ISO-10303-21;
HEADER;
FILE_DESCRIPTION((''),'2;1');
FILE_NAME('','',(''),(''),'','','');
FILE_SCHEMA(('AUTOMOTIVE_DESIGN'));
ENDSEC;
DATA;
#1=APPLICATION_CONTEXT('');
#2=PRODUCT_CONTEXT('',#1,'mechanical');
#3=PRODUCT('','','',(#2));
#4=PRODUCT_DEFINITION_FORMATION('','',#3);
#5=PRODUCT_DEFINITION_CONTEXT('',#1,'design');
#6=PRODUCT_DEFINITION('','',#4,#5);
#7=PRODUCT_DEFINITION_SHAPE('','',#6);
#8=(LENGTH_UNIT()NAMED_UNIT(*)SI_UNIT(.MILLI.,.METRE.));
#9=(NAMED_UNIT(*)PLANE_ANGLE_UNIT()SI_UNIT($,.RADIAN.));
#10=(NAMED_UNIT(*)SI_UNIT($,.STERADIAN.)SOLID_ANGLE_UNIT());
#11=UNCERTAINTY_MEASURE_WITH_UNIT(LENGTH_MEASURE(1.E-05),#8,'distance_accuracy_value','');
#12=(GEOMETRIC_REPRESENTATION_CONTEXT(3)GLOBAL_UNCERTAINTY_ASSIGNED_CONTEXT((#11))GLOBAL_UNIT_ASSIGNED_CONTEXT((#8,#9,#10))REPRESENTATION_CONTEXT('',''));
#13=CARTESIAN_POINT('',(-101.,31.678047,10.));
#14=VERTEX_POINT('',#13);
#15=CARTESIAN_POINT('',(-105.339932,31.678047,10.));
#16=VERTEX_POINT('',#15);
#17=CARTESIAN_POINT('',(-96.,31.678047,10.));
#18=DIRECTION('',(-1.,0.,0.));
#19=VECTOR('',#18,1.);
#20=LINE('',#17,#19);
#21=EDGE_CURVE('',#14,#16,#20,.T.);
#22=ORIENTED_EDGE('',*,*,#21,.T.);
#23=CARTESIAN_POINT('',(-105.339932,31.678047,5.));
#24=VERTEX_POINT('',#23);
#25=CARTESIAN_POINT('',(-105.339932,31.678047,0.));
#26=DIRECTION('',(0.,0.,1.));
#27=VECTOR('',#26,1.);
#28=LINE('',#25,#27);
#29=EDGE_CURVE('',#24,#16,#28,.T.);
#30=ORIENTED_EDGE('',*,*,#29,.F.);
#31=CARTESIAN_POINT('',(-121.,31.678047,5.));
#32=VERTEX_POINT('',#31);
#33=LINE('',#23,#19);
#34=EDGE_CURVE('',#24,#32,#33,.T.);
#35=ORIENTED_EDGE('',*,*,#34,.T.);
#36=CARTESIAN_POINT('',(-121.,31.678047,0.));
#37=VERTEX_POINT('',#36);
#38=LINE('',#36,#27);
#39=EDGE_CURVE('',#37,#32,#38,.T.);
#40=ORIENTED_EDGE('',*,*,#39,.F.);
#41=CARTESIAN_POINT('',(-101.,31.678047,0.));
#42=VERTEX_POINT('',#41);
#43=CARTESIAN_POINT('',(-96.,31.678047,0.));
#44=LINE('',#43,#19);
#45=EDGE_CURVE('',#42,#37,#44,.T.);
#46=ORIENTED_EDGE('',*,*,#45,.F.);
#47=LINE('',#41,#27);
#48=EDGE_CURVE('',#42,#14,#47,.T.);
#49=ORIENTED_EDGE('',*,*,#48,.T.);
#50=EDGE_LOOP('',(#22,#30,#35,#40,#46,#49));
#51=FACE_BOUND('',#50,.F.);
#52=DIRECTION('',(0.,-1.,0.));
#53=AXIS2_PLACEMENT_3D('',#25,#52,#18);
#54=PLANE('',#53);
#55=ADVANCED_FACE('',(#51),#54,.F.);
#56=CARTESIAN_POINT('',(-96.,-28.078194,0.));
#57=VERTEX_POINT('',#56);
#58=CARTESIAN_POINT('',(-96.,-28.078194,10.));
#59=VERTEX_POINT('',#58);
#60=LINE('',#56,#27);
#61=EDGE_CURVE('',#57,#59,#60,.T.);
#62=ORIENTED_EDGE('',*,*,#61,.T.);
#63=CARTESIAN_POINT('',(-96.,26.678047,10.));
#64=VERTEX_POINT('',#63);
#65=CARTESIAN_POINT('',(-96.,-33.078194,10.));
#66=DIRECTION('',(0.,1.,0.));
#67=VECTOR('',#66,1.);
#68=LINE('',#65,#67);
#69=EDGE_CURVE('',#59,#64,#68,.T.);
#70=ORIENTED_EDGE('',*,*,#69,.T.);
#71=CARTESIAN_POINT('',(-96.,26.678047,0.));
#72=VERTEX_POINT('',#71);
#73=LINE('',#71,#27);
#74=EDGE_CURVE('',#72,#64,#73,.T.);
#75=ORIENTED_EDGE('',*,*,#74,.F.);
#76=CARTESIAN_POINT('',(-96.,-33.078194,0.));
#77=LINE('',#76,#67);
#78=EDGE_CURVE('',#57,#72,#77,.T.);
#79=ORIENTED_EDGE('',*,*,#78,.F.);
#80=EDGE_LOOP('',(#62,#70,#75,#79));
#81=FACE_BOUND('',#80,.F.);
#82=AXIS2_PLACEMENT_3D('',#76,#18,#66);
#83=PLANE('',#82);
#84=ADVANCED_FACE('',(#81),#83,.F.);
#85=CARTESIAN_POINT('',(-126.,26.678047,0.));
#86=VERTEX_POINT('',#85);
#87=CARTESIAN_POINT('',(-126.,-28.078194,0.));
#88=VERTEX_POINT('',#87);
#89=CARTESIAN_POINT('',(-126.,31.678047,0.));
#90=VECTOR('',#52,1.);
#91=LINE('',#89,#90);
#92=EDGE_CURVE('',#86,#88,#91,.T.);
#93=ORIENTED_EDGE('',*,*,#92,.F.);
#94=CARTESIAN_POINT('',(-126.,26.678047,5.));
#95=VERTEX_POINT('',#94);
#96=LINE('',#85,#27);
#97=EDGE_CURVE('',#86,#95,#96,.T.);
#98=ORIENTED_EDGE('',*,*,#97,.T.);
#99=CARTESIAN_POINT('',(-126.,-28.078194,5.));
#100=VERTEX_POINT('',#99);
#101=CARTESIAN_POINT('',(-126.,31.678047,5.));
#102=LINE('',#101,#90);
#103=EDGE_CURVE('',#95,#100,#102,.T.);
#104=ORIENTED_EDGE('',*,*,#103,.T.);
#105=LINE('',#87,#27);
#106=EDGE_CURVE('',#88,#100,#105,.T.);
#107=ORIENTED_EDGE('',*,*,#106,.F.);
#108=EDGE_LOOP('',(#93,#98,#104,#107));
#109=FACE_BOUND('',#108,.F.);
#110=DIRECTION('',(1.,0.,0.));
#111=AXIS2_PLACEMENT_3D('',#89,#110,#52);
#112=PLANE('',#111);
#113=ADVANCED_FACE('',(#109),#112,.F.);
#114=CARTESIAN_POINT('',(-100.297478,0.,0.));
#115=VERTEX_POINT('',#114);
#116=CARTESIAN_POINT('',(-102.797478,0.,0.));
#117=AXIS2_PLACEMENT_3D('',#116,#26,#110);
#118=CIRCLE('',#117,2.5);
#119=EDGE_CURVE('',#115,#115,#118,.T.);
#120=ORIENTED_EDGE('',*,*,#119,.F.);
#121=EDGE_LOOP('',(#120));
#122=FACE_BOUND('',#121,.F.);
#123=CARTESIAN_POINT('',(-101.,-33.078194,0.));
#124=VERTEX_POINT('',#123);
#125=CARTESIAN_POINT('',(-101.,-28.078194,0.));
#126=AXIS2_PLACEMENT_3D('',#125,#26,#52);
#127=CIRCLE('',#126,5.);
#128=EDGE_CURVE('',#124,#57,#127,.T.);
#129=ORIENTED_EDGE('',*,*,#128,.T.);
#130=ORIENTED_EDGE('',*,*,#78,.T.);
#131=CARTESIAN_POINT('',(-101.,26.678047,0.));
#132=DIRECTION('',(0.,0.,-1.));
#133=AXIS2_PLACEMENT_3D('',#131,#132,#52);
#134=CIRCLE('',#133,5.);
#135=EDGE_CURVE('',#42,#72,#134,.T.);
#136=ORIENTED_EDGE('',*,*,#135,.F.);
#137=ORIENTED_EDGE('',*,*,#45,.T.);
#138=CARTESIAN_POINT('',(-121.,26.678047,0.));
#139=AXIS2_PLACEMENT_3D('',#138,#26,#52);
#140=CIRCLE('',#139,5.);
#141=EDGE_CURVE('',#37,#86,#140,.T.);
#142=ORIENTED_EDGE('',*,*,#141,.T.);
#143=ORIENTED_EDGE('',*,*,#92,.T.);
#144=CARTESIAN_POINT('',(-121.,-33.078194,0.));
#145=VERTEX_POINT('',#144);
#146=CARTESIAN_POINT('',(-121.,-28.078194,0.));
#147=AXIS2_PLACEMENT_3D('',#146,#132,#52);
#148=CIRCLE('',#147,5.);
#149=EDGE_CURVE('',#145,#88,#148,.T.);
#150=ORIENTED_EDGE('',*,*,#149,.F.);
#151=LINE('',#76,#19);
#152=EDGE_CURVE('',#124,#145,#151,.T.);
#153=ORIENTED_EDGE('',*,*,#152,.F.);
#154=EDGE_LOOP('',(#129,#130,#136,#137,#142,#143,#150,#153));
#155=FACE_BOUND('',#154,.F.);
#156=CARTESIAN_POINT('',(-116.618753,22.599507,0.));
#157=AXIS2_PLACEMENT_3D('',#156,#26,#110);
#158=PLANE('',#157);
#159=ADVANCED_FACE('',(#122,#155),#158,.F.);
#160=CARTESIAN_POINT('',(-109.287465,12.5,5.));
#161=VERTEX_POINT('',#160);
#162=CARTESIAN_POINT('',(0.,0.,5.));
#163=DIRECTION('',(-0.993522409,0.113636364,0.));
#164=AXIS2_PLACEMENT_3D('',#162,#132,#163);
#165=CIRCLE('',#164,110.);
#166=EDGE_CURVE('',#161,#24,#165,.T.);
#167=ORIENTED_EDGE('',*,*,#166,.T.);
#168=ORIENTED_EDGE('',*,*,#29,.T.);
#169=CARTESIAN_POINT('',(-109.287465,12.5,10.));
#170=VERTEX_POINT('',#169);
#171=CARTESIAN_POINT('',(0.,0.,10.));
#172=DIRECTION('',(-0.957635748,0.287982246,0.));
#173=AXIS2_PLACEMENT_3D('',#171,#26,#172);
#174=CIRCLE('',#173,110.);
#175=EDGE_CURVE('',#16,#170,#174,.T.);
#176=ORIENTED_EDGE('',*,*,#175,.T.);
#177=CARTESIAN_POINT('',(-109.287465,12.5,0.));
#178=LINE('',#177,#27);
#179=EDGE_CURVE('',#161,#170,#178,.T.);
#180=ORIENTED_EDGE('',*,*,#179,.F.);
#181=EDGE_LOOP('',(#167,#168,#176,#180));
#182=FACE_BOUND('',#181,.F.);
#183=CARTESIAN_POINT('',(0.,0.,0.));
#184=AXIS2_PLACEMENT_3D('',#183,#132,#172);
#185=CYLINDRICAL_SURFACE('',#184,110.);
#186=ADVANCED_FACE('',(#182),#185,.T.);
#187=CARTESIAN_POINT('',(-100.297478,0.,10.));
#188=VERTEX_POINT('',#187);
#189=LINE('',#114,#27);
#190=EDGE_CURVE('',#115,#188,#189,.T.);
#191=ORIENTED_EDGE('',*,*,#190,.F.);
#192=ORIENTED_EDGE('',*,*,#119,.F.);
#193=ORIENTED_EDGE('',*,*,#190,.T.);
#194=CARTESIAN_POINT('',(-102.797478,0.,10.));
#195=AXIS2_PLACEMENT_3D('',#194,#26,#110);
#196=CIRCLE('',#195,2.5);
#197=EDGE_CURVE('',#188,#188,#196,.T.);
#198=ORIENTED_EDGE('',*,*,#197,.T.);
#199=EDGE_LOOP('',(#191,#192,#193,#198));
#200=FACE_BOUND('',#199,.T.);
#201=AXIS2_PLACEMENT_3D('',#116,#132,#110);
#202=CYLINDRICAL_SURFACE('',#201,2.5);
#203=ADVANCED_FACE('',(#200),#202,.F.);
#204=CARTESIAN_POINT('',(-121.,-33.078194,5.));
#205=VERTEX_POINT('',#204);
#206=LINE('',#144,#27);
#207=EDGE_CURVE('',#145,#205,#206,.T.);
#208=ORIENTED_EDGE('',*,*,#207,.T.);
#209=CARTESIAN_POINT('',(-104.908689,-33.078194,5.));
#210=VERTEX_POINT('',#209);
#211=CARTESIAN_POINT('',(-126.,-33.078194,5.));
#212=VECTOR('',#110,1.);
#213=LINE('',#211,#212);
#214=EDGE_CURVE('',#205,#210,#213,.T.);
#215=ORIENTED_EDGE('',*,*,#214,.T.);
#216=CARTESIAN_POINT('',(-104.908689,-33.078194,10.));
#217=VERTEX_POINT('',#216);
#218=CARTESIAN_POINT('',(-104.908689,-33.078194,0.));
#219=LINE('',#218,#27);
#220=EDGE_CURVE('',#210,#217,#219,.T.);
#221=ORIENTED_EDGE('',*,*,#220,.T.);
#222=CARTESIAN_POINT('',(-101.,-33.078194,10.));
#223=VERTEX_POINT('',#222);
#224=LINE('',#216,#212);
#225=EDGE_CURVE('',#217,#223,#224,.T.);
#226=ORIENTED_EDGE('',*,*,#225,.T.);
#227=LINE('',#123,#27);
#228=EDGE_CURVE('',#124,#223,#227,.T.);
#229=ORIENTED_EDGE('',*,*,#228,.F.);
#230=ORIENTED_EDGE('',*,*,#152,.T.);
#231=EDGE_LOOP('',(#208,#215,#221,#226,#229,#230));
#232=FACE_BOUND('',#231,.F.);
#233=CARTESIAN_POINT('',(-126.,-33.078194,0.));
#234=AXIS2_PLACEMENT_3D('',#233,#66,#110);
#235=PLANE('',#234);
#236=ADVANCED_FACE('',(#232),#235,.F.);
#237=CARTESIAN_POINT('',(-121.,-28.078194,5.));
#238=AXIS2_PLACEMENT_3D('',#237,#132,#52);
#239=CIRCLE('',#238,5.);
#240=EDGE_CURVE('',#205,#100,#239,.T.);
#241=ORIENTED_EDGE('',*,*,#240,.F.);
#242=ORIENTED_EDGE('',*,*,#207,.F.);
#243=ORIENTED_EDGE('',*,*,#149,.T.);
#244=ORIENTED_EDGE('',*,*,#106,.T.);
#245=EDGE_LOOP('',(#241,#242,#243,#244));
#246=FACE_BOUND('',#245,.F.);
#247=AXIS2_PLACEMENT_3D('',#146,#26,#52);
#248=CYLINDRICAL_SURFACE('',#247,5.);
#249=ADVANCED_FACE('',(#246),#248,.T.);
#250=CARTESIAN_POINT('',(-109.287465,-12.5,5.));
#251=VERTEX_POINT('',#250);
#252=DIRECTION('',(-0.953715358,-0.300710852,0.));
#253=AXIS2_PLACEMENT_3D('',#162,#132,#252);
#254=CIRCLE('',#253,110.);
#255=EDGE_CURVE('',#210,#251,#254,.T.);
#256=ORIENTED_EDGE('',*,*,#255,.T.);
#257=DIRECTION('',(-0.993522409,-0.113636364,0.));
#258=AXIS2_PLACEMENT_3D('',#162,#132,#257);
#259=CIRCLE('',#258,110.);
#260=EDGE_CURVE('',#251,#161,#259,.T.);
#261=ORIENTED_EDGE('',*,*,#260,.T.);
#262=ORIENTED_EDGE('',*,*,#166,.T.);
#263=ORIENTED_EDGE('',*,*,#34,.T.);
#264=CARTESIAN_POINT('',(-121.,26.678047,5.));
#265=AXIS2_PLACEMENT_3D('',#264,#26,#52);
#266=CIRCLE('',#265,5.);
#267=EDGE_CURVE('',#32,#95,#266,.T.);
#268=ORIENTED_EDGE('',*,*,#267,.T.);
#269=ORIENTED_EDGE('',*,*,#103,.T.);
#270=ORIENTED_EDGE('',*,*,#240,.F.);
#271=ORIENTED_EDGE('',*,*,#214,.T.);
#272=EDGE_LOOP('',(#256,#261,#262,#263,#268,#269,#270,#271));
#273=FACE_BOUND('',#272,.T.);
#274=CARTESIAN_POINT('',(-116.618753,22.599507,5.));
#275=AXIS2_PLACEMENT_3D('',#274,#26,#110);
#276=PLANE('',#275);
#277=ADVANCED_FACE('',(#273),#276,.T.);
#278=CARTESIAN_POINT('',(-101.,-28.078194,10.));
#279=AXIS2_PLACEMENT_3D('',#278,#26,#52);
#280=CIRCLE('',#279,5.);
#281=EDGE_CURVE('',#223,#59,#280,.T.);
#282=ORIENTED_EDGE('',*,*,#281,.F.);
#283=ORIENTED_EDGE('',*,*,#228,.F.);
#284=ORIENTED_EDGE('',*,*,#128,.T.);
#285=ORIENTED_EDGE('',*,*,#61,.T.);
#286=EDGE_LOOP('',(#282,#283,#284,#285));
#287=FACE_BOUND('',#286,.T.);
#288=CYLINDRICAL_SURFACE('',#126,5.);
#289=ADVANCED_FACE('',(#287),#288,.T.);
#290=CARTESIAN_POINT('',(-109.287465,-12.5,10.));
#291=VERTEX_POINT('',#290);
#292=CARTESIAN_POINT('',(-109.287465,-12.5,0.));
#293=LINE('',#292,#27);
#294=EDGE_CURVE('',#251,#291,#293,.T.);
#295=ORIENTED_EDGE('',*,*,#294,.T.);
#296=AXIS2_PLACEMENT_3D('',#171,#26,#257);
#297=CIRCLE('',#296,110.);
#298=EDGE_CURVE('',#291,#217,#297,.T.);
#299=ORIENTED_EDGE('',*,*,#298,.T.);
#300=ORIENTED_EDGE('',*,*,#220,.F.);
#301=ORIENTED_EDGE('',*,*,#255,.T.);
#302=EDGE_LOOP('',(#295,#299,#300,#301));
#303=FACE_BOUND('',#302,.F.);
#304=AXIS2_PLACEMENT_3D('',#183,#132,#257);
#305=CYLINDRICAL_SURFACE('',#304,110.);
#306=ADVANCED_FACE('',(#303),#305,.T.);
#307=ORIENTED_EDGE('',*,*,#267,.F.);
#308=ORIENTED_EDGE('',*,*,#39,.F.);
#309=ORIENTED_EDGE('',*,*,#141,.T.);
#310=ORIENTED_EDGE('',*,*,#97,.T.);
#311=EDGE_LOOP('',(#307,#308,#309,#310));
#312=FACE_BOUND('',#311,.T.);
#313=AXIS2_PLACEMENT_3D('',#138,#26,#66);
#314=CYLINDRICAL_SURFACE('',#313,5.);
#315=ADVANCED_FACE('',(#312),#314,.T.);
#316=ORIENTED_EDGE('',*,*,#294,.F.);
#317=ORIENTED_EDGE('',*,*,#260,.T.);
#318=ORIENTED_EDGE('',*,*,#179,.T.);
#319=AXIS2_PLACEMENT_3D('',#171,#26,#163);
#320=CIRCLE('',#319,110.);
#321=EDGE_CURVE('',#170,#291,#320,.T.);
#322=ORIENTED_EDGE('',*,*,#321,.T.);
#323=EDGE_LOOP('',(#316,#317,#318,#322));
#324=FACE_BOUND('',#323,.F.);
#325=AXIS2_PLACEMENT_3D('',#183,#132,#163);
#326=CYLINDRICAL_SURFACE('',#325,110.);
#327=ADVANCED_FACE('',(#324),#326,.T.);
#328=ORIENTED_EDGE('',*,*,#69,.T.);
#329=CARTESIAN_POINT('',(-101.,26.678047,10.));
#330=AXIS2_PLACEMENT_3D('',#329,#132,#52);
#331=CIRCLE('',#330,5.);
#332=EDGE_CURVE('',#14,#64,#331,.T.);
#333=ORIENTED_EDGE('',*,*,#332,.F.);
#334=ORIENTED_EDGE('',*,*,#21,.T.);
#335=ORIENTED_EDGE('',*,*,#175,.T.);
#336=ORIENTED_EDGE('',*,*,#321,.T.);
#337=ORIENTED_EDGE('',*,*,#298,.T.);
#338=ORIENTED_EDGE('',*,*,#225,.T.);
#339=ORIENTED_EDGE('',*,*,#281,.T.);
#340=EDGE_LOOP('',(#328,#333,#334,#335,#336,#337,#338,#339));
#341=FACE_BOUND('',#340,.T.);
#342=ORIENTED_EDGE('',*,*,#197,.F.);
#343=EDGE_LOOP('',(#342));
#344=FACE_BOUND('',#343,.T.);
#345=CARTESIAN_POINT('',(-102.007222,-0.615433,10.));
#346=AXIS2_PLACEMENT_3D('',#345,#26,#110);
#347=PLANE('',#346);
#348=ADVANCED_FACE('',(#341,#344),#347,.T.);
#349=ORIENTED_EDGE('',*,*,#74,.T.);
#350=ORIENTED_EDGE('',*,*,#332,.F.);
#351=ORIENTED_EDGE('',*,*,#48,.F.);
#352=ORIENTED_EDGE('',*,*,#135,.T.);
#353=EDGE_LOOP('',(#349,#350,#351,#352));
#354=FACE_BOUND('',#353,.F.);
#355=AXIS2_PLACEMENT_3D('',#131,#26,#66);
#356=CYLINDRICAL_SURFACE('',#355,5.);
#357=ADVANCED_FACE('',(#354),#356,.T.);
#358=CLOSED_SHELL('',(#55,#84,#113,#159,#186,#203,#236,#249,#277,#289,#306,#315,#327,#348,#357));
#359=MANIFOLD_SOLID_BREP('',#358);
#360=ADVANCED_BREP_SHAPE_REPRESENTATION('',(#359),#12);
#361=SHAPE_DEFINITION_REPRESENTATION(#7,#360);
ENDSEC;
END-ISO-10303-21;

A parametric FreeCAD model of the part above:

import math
import FreeCAD as App
import Part
import Sketcher
from FreeCAD import Vector
Q = App.Units.Quantity


def edges_at(feature, points):
    """Names of the edges that pass closest to the given points."""
    edges = feature.Shape.Edges
    near = lambda p: min(range(len(edges)), key=lambda i: edges[i].distToShape(Part.Vertex(*p))[0])
    return sorted({f"Edge{near(p) + 1}" for p in points})

doc = App.newDocument("Part")
body = doc.addObject("PartDesign::Body", "Body")

# Sketch on XY plane
sketch1 = doc.addObject("Sketcher::SketchObject", "Sketch")
body.addObject(sketch1)
sketch1.AttachmentSupport = (doc.XY_Plane, [""])
sketch1.MapMode = "FlatFace"
sketch1.addGeometry([
    Part.ArcOfCircle(Part.Circle(Vector(0, 0, 0), Vector(0, 0, 1), 110), math.radians(163.26), math.radians(173.48)),  # 0
    Part.ArcOfCircle(Part.Circle(Vector(0, 0, 0), Vector(0, 0, 1), 110), math.radians(173.48), math.radians(186.52)),  # 1
    Part.ArcOfCircle(Part.Circle(Vector(0, 0, 0), Vector(0, 0, 1), 110), math.radians(-173.48), math.radians(-162.5)),  # 2
    Part.LineSegment(Vector(-104.9, -33.1, 0), Vector(-96, -33.1, 0)),  # 3
    Part.LineSegment(Vector(-96, -33.1, 0), Vector(-96, 31.7, 0)),  # 4
    Part.LineSegment(Vector(-96, 31.7, 0), Vector(-105.3, 31.7, 0)),  # 5
    Part.Circle(Vector(-102.8, 0, 0), Vector(0, 0, 1), 2.5),  # 6
], False)
sketch1.addConstraint([
    Sketcher.Constraint("Tangent", 0, 2, 1, 1),
    Sketcher.Constraint("Tangent", 1, 2, 2, 1),
    Sketcher.Constraint("Coincident", 2, 2, 3, 1),
    Sketcher.Constraint("Coincident", 3, 2, 4, 1),
    Sketcher.Constraint("Coincident", 4, 2, 5, 1),
    Sketcher.Constraint("Coincident", 5, 2, 0, 1),
    Sketcher.Constraint("Horizontal", 3),
    Sketcher.Constraint("Vertical", 4),
    Sketcher.Constraint("Horizontal", 5),
    Sketcher.Constraint("Coincident", 0, 3, -1, 1),
    Sketcher.Constraint("Coincident", 2, 3, -1, 1),
    Sketcher.Constraint("PointOnObject", 6, 3, -1),
    Sketcher.Constraint("Vertical", 0, 2, 1, 2),
    Sketcher.Constraint("Diameter", 6, Q("5 mm")),
    Sketcher.Constraint("Radius", 0, Q("110 mm")),
    Sketcher.Constraint("DistanceX", 3, 2, -1, 1, Q("96 mm")),
    Sketcher.Constraint("DistanceY", 1, 2, 0, 2, Q("25 mm")),
    Sketcher.Constraint("DistanceX", 3, 1, 3, 2, Q("8.908689 mm")),
    Sketcher.Constraint("DistanceY", 4, 1, 4, 2, Q("64.756241 mm")),
    Sketcher.Constraint("DistanceX", 6, 3, -1, 1, Q("102.797478 mm")),
])
pad1 = doc.addObject("PartDesign::Pad", "Pad")
body.addObject(pad1)
pad1.Profile = sketch1
pad1.Length = 10

# Sketch on XY plane
sketch2 = doc.addObject("Sketcher::SketchObject", "Sketch001")
body.addObject(sketch2)
sketch2.AttachmentSupport = (doc.XY_Plane, [""])
sketch2.MapMode = "FlatFace"
sketch2.addGeometry([
    Part.ArcOfCircle(Part.Circle(Vector(0, 0, 0), Vector(0, 0, 1), 110), math.radians(163.26), math.radians(173.48)),  # 0
    Part.LineSegment(Vector(-105, 32, 0), Vector(-126, 32, 0)),  # 1
    Part.LineSegment(Vector(-126, 32, 0), Vector(-126, -33, 0)),  # 2
    Part.LineSegment(Vector(-126, -33, 0), Vector(-105, -33, 0)),  # 3
    Part.ArcOfCircle(Part.Circle(Vector(0, 0, 0), Vector(0, 0, 1), 110), math.radians(-173.48), math.radians(-162.5)),  # 4
    Part.ArcOfCircle(Part.Circle(Vector(0, 0, 0), Vector(0, 0, 1), 110), math.radians(173.48), math.radians(186.52)),  # 5
], False)
sketch2.addConstraint([
    Sketcher.Constraint("Coincident", 0, 1, 1, 1),
    Sketcher.Constraint("Coincident", 1, 2, 2, 1),
    Sketcher.Constraint("Coincident", 2, 2, 3, 1),
    Sketcher.Constraint("Coincident", 3, 2, 4, 2),
    Sketcher.Constraint("Tangent", 4, 1, 5, 2),
    Sketcher.Constraint("Tangent", 5, 1, 0, 2),
    Sketcher.Constraint("Horizontal", 1),
    Sketcher.Constraint("Vertical", 2),
    Sketcher.Constraint("Horizontal", 3),
    Sketcher.Constraint("Coincident", 0, 3, -1, 1),
    Sketcher.Constraint("Coincident", 4, 3, -1, 1),
    Sketcher.Constraint("Vertical", 4, 1, 5, 1),
    Sketcher.Constraint("Radius", 0, Q("110 mm")),
    Sketcher.Constraint("DistanceX", 1, 2, -1, 1, Q("126 mm")),
    Sketcher.Constraint("DistanceY", 4, 1, 5, 1, Q("25 mm")),
    Sketcher.Constraint("DistanceX", 3, 1, 3, 2, Q("21.091311 mm")),
    Sketcher.Constraint("DistanceY", 2, 2, 2, 1, Q("64.756241 mm")),
])
pad2 = doc.addObject("PartDesign::Pad", "Pad001")
body.addObject(pad2)
pad2.Profile = sketch2
pad2.Length = 5
doc.recompute()

fillet = doc.addObject("PartDesign::Fillet", "Fillet")
body.addObject(fillet)
fillet.Base = (pad2, edges_at(pad2, [
    (-126, -33.078, 2.5),
    (-96, -33.078, 5),
    (-126, 31.678, 2.5),
    (-96, 31.678, 5),
]))
fillet.Radius = 5

doc.recompute()
